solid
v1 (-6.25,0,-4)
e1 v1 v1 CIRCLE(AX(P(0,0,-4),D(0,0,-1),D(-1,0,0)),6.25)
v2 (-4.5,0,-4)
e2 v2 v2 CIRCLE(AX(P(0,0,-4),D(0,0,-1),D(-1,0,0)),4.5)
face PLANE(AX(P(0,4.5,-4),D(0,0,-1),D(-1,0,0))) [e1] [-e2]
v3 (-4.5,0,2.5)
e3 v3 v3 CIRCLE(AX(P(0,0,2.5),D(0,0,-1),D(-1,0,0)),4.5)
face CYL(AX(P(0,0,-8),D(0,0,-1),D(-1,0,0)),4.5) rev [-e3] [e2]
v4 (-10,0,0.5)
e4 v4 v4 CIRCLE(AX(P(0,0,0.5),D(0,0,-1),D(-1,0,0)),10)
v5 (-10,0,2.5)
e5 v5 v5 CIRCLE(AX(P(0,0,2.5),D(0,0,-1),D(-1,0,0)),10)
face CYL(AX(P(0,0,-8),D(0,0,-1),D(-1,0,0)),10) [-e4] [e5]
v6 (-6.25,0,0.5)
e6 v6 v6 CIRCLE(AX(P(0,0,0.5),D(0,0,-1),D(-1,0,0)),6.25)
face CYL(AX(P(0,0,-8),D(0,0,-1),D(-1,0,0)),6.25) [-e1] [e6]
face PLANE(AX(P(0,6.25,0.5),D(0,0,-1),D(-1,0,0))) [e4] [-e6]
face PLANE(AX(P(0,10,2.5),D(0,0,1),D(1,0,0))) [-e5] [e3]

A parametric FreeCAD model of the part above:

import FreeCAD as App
import Part
import Sketcher
from FreeCAD import Vector


def add_polygon(sketch, points):
    """Adds a closed chain of lines whose ends are joined by coincident constraints."""
    first, n = sketch.GeometryCount, len(points)
    for a, b in zip(points, points[1:] + points[:1]):
        sketch.addGeometry(Part.LineSegment(App.Vector(*a, 0), App.Vector(*b, 0)), False)
    for i in range(n):
        sketch.addConstraint(Sketcher.Constraint("Coincident", first + i, 2, first + (i + 1) % n, 1))

doc = App.newDocument("Part")
params = doc.addObject("Spreadsheet::Sheet", "Params")
for row, (alias, value) in enumerate([
    ("sketch1_height", "2 mm"),
    ("sketch1_width", "5.5 mm"),
    ("sketch1_height2", "4.5 mm"),
    ("sketch1_width2", "1.75 mm"),
    ("revolution_angle", "360 deg"),
], start=1):
    params.set(f"A{row}", alias)
    params.set(f"B{row}", "=" + value)
    params.setAlias(f"B{row}", alias)

body = doc.addObject("PartDesign::Body", "Body")

# Sketch on YZ plane
sketch1 = body.newObject("Sketcher::SketchObject", "Sketch")
sketch1.AttachmentSupport = (doc.getObject("YZ_Plane"), [""])
sketch1.MapMode = "FlatFace"
add_polygon(sketch1, [(4.5, -4), (6.2, -4), (6.2, 0.5), (10, 0.5), (10, 2.5), (4.5, 2.5)])  # lines 0-5
sketch1.addConstraint([
    Sketcher.Constraint("Horizontal", 0),
    Sketcher.Constraint("Vertical", 1),
    Sketcher.Constraint("Horizontal", 2),
    Sketcher.Constraint("Vertical", 3),
    Sketcher.Constraint("Horizontal", 4),
    Sketcher.Constraint("Vertical", 5),
    Sketcher.Constraint("DistanceY", 3, 1, 3, 2, 2.0),
    Sketcher.Constraint("DistanceX", 4, 2, 4, 1, 5.5),
    Sketcher.Constraint("DistanceY", 1, 1, 1, 2, 4.5),
    Sketcher.Constraint("DistanceY", 0, 2, -1, 1, 4.0),
    Sketcher.Constraint("DistanceX", -1, 1, 2, 2, 10.0),
    Sketcher.Constraint("DistanceX", 0, 1, 0, 2, 1.75),
])
sketch1.setExpression("Constraints[12]", "Params.sketch1_height")
sketch1.setExpression("Constraints[13]", "Params.sketch1_width")
sketch1.setExpression("Constraints[14]", "Params.sketch1_height2")
sketch1.setExpression("Constraints[17]", "Params.sketch1_width2")
revolution = body.newObject("PartDesign::Revolution", "Revolution")
revolution.Profile = sketch1
revolution.ReferenceAxis = (sketch1, ["V_Axis"])
revolution.setExpression("Angle", "Params.revolution_angle")

doc.recompute()
